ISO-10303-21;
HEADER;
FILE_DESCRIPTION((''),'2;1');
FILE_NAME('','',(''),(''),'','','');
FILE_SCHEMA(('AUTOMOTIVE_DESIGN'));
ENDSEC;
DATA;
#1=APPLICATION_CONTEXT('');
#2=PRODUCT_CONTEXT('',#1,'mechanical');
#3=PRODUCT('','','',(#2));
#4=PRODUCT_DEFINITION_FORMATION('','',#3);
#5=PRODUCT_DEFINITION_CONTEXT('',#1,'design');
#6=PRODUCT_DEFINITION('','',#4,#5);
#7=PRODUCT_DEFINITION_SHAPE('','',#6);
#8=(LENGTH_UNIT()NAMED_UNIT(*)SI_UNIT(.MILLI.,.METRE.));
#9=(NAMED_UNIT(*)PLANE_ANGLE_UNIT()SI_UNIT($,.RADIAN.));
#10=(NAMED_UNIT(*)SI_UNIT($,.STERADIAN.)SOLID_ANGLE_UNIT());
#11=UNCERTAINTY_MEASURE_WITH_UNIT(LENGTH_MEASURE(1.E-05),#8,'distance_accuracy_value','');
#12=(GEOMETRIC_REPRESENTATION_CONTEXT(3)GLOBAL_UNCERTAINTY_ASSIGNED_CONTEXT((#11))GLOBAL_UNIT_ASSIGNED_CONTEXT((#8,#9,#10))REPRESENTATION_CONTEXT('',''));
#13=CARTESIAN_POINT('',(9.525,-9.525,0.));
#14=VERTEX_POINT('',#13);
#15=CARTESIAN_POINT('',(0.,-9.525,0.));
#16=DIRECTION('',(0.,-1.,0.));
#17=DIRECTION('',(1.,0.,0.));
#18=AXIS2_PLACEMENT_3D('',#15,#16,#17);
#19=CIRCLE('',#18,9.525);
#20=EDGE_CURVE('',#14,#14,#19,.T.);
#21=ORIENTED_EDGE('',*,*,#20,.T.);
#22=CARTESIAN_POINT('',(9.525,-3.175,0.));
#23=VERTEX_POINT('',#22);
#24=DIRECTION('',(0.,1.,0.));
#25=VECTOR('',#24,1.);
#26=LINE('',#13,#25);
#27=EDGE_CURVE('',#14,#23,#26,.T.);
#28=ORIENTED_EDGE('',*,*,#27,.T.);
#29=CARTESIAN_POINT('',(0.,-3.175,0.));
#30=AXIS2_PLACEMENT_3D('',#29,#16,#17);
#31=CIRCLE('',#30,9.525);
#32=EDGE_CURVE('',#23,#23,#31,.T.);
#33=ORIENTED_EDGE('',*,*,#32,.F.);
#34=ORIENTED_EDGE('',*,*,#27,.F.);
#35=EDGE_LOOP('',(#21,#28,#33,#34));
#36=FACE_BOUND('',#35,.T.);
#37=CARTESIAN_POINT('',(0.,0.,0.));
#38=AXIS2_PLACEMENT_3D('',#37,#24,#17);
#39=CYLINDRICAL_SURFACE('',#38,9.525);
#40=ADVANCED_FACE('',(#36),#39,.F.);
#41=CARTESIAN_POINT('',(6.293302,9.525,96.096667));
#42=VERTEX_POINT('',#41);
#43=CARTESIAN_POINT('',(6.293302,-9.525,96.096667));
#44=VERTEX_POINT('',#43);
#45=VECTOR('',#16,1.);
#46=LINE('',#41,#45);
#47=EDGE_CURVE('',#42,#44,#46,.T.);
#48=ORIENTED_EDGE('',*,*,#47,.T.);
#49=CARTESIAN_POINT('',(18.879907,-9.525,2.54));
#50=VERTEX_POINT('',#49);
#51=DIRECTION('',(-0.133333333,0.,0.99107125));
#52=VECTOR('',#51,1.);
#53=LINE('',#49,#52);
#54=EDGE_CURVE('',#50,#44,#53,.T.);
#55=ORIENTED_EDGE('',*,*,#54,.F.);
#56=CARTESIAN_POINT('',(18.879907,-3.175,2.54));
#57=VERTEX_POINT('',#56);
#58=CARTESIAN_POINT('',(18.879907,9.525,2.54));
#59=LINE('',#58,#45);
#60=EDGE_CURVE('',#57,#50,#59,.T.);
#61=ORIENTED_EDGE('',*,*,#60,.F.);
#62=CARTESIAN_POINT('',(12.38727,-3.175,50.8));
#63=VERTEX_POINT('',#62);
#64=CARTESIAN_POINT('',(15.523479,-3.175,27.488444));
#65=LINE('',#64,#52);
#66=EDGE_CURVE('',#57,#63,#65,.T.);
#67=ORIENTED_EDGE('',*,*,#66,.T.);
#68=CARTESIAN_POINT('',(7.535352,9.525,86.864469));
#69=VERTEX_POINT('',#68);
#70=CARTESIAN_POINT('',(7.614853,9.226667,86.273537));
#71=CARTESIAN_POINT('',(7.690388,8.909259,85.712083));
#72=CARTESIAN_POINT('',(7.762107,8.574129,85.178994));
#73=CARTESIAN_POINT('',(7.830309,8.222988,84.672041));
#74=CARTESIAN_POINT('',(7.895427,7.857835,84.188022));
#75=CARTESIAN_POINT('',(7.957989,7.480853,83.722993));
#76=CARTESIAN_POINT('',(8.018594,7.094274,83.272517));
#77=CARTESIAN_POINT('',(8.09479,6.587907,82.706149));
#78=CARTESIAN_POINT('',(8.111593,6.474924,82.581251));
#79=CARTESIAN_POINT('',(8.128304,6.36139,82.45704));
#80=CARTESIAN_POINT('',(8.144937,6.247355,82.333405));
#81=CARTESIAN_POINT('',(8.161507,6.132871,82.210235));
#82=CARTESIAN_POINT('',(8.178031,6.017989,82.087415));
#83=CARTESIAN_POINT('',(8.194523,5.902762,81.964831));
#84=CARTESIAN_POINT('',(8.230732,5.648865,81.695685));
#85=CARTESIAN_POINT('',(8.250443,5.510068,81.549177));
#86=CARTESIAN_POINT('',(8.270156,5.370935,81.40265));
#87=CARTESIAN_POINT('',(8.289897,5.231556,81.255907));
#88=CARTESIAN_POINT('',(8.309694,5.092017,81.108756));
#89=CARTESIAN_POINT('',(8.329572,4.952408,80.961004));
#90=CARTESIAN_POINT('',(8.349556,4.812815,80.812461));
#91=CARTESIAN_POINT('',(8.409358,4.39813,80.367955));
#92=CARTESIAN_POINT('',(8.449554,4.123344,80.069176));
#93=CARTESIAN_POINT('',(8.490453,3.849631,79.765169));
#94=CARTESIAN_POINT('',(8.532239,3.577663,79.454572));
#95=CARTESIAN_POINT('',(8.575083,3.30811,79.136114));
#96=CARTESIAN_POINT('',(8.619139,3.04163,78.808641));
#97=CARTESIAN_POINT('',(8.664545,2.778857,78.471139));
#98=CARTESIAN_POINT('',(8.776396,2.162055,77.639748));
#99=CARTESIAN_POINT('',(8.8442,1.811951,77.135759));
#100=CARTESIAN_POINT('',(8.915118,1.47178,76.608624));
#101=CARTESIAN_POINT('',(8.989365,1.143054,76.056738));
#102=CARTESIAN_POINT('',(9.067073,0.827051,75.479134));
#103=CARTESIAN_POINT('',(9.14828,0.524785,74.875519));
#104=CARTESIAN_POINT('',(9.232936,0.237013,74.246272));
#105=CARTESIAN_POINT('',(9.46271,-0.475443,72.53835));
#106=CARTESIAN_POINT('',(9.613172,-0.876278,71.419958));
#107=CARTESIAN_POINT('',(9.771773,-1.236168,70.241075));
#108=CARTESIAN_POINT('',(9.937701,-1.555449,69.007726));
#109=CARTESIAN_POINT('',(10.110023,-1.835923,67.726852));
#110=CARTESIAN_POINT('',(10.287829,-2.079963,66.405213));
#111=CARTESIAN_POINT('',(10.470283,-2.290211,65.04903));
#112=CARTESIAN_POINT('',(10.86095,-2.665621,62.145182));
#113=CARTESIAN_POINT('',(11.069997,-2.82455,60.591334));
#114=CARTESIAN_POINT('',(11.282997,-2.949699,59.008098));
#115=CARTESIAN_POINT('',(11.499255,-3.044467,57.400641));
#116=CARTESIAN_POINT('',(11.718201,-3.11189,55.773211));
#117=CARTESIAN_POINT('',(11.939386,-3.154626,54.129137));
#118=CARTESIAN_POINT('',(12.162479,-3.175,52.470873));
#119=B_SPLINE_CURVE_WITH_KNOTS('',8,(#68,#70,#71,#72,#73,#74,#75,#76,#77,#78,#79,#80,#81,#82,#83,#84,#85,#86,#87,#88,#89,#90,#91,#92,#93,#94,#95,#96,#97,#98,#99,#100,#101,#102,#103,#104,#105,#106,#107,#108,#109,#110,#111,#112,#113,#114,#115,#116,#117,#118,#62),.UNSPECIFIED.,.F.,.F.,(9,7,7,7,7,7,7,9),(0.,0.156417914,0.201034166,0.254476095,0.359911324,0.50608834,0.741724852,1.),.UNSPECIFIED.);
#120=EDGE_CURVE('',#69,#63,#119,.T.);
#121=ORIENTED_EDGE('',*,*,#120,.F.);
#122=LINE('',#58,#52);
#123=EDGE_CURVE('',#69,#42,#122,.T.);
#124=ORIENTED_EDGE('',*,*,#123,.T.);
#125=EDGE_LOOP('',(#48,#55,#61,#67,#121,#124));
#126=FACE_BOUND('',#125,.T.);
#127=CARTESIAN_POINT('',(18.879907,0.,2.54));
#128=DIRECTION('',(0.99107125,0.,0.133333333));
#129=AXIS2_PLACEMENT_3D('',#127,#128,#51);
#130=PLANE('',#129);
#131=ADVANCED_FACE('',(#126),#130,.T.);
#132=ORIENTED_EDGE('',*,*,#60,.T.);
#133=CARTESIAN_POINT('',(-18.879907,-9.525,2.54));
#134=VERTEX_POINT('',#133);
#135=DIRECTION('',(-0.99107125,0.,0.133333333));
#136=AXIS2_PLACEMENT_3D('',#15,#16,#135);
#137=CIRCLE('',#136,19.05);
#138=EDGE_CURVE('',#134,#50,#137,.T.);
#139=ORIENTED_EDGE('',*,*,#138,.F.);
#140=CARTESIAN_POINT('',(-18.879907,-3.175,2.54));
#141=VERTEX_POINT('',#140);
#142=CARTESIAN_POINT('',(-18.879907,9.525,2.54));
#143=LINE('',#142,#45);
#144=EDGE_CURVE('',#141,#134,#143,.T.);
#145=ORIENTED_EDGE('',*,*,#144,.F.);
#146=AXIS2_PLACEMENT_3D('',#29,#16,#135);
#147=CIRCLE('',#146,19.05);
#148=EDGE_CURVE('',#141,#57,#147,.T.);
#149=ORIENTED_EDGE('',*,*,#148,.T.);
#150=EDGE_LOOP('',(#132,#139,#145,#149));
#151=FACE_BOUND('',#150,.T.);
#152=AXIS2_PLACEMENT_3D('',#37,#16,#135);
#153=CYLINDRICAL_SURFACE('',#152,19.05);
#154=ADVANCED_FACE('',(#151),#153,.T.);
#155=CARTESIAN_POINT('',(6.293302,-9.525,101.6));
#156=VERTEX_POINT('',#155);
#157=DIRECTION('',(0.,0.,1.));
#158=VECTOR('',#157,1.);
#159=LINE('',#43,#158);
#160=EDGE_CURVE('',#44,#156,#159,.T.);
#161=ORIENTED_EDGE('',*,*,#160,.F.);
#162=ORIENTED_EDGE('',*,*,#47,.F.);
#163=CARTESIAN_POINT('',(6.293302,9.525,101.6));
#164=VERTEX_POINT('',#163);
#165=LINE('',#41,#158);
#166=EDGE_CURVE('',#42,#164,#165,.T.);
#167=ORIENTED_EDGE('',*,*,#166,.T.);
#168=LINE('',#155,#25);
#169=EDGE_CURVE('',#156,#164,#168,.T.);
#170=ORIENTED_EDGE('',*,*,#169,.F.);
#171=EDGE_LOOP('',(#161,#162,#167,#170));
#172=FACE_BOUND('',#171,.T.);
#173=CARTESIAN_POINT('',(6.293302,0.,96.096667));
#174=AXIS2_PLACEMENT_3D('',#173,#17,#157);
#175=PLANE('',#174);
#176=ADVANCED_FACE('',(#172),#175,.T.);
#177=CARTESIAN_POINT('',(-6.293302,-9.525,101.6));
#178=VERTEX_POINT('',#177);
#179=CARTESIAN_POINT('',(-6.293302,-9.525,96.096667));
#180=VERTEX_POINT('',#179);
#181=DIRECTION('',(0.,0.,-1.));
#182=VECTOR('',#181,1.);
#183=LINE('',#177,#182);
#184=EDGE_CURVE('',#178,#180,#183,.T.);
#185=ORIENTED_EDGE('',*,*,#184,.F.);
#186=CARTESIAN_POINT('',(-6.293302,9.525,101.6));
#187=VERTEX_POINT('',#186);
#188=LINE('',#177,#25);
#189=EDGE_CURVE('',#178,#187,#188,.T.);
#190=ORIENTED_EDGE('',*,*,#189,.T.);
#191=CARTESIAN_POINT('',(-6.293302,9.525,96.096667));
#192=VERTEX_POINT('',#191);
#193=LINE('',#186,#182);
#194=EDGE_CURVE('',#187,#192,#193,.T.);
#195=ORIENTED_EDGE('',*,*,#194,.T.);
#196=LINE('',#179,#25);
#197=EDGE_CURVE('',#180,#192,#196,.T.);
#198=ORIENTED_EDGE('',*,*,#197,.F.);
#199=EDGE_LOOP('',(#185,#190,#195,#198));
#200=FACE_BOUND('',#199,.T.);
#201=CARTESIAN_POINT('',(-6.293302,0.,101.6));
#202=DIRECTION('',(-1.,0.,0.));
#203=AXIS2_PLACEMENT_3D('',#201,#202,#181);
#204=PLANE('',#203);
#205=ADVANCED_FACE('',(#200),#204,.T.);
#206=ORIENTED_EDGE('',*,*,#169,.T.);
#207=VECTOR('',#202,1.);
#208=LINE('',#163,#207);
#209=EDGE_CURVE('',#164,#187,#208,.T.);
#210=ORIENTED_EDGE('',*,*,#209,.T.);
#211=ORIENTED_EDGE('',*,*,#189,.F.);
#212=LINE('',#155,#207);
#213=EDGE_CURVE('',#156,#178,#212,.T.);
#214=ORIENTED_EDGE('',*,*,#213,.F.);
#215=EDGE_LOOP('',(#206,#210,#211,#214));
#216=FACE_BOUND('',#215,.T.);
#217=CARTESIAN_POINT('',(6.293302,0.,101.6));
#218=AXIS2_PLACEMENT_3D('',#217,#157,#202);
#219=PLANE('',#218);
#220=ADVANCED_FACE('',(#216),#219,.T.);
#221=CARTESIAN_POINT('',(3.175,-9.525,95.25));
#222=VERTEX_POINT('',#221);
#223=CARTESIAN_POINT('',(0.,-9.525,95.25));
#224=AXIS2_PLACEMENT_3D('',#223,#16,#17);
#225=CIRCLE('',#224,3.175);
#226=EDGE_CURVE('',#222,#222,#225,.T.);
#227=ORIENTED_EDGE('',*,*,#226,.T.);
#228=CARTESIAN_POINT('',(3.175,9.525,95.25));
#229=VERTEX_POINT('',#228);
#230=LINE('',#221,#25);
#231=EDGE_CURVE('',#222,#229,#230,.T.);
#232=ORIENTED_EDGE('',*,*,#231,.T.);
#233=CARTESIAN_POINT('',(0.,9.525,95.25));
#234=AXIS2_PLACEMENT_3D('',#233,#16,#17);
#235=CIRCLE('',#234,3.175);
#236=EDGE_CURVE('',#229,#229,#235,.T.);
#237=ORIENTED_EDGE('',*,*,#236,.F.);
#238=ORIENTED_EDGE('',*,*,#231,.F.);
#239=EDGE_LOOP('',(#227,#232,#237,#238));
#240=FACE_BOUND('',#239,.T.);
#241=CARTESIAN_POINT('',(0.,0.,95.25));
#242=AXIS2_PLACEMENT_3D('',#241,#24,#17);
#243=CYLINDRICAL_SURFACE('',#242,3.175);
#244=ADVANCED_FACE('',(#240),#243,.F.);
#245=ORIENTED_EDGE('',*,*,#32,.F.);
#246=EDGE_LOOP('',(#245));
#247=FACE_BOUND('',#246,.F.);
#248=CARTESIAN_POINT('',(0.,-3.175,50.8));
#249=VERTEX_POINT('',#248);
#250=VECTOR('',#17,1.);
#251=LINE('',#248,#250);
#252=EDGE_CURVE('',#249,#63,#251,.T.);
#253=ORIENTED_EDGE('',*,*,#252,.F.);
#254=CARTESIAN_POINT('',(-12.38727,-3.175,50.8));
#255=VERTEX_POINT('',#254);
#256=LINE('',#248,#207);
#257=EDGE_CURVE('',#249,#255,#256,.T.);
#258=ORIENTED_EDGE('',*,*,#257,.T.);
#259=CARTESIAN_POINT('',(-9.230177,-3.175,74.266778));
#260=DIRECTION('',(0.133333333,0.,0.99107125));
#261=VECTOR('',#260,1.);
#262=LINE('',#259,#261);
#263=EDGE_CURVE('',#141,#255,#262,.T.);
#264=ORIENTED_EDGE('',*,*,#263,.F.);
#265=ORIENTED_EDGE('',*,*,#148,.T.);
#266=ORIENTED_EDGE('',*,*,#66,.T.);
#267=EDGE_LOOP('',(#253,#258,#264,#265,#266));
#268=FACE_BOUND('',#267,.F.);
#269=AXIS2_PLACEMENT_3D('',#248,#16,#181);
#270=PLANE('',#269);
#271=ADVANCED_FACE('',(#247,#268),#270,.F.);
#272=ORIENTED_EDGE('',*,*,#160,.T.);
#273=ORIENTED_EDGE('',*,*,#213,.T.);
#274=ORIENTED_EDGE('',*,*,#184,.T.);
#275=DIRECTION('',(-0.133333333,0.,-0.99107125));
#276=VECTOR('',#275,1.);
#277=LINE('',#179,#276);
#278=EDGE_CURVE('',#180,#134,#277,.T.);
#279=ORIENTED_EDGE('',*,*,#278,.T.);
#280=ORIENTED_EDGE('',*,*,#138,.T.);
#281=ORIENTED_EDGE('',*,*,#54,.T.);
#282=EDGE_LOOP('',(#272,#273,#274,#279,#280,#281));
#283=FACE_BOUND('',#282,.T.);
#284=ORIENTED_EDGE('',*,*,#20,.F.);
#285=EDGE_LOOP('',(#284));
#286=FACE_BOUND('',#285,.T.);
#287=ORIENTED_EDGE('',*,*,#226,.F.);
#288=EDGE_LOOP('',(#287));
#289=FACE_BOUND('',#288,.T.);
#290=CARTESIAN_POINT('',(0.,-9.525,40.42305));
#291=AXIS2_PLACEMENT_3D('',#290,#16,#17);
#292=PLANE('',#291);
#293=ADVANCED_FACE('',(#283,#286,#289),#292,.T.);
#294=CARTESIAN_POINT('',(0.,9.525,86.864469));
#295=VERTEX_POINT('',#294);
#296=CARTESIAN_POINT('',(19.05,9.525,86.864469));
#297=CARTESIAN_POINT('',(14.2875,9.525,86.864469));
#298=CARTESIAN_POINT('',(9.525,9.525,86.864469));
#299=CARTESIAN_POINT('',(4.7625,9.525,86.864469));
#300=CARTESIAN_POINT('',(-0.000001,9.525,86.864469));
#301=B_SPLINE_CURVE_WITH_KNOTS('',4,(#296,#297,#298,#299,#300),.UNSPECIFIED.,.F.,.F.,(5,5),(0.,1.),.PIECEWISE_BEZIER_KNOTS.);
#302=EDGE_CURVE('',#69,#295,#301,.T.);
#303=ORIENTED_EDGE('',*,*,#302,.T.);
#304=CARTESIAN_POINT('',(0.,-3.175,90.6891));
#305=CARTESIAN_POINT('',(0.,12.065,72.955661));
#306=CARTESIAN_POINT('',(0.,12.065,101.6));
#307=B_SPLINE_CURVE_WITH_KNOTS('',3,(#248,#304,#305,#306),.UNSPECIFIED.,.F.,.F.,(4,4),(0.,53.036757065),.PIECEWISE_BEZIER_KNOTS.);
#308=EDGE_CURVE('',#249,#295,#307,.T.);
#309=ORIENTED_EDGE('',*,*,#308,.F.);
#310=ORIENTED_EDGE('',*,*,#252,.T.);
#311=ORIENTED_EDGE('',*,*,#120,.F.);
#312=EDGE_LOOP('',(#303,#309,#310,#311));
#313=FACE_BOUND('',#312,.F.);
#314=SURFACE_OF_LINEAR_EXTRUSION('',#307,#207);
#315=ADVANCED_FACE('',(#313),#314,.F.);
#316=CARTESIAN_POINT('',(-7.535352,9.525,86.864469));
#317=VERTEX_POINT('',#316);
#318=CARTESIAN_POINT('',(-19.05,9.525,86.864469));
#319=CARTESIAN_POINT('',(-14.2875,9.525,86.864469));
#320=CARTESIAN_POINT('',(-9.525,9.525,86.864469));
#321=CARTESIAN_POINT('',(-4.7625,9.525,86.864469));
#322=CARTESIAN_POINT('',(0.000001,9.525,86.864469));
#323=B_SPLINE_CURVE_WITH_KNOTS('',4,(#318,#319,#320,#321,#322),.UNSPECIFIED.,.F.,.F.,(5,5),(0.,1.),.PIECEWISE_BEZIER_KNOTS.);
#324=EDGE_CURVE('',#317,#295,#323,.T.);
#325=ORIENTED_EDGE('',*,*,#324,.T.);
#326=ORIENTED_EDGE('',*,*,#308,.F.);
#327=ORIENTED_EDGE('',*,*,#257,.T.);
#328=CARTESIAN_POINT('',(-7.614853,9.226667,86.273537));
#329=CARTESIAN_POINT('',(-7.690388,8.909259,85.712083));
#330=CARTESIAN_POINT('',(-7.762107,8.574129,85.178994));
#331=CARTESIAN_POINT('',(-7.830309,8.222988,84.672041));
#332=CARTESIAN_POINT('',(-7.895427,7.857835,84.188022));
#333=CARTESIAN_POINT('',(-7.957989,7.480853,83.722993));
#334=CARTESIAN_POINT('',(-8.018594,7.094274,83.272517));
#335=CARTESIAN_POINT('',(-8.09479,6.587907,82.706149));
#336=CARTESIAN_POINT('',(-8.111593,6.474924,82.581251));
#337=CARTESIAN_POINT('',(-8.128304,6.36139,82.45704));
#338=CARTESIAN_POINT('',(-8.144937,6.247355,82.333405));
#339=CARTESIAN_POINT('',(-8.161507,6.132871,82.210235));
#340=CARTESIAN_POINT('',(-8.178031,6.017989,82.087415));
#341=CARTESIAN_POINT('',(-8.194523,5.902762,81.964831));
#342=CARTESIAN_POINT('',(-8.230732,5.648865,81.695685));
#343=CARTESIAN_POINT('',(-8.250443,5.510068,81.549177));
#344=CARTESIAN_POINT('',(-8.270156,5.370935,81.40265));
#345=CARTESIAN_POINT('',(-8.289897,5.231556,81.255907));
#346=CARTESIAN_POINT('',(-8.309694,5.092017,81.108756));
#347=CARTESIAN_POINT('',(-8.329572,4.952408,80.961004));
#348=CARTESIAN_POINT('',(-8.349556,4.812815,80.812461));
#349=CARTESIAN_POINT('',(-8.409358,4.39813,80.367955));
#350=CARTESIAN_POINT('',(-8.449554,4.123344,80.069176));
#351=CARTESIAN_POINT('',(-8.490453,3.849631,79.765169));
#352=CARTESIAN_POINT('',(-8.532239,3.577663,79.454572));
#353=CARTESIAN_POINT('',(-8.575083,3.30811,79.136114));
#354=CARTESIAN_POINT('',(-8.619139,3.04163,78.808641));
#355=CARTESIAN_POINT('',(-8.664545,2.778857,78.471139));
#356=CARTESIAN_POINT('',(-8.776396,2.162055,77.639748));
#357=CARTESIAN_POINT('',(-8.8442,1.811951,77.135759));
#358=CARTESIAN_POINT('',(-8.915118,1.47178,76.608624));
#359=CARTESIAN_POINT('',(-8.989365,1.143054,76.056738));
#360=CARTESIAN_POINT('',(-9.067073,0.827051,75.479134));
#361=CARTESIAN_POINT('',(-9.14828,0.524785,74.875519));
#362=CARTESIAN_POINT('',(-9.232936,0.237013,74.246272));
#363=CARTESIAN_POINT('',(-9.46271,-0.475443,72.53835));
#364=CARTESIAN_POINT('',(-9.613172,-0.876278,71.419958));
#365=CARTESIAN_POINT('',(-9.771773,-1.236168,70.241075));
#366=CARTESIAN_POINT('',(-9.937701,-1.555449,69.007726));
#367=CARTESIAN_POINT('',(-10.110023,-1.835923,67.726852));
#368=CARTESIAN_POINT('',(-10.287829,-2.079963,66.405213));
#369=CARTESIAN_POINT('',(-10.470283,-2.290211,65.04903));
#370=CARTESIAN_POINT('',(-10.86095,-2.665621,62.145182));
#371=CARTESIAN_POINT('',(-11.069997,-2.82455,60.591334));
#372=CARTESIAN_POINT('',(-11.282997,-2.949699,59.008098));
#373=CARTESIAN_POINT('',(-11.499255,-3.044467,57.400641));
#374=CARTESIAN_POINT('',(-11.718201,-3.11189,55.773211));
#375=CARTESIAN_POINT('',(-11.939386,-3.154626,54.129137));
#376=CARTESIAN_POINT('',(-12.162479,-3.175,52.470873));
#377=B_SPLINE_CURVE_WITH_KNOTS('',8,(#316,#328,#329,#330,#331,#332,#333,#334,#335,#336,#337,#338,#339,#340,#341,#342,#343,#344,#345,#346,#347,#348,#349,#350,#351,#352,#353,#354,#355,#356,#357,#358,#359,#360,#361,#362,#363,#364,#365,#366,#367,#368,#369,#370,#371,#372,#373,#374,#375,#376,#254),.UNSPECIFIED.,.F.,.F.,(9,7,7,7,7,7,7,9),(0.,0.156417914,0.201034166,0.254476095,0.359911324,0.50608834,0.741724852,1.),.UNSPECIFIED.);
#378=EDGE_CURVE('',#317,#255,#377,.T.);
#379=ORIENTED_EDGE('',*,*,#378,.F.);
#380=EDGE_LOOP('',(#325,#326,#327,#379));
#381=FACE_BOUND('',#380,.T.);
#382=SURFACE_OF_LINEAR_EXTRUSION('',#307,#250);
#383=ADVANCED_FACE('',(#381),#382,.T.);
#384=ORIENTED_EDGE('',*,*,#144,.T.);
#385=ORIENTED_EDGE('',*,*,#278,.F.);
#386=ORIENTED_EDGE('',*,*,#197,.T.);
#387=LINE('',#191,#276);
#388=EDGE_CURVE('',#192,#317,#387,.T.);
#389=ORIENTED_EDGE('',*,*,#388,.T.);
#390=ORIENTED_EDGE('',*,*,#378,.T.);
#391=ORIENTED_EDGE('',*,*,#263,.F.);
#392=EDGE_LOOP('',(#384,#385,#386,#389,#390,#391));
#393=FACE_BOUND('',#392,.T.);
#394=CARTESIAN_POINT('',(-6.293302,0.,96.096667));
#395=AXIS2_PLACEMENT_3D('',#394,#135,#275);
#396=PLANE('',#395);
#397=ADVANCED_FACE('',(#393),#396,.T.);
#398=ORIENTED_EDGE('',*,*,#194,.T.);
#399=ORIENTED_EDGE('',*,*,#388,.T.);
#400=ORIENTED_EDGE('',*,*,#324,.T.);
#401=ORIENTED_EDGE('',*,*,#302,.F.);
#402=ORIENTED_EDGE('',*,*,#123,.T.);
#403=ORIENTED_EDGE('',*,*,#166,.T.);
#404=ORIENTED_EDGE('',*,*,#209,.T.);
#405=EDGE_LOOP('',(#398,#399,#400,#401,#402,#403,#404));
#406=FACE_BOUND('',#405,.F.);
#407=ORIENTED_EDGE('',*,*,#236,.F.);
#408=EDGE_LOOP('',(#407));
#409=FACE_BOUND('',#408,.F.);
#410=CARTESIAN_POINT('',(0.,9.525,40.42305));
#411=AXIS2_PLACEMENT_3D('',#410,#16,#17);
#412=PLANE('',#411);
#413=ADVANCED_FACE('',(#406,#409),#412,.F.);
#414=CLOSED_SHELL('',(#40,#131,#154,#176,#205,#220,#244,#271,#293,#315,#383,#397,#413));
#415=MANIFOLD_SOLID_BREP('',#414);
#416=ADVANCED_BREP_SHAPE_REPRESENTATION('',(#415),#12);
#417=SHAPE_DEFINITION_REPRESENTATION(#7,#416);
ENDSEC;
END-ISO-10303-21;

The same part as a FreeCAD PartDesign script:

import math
import FreeCAD as App
import Part
import Sketcher
from FreeCAD import Vector
Q = App.Units.Quantity

doc = App.newDocument("Part")
params = doc.addObject("Spreadsheet::Sheet", "Params")
for row, (alias, value) in enumerate([
    ("sketch1_diameter", "0.75 in"),
    ("sketch1_diameter2", "0.25 in"),
    ("sketch1_radius", "0.75 in"),
    ("pad1_length", "0.75 in"),
], start=1):
    params.set(f"A{row}", alias)
    params.set(f"B{row}", "=" + value)
    params.setAlias(f"B{row}", alias)

body = doc.addObject("PartDesign::Body", "Body")

# Sketch on XZ plane
sketch1 = body.newObject("Sketcher::SketchObject", "Sketch")
sketch1.AttachmentSupport = (doc.getObject("XZ_Plane"), [""])
sketch1.MapMode = "FlatFace"
sketch1.addGeometry([
    Part.LineSegment(Vector(-6.3, 96.1, 0), Vector(-18.9, 2.5, 0)),  # 0
    Part.ArcOfCircle(Part.Circle(Vector(0, 0, 0), Vector(0, 0, 1), 19.1), math.radians(172), math.radians(368)),  # 1
    Part.LineSegment(Vector(18.9, 2.5, 0), Vector(6.3, 96.1, 0)),  # 2
    Part.LineSegment(Vector(6.3, 96.1, 0), Vector(6.3, 101.6, 0)),  # 3
    Part.LineSegment(Vector(6.3, 101.6, 0), Vector(-6.3, 101.6, 0)),  # 4
    Part.LineSegment(Vector(-6.3, 101.6, 0), Vector(-6.3, 96.1, 0)),  # 5
    Part.Circle(Vector(0, 0, 0), Vector(0, 0, 1), 9.5),  # 6
    Part.Circle(Vector(0, 95.2, 0), Vector(0, 0, 1), 3.2),  # 7
], False)
sketch1.addConstraint([
    Sketcher.Constraint("Tangent", 0, 2, 1, 1),
    Sketcher.Constraint("Tangent", 1, 2, 2, 1),
    Sketcher.Constraint("Coincident", 2, 2, 3, 1),
    Sketcher.Constraint("Coincident", 3, 2, 4, 1),
    Sketcher.Constraint("Coincident", 4, 2, 5, 1),
    Sketcher.Constraint("Coincident", 5, 2, 0, 1),
    Sketcher.Constraint("Vertical", 3),
    Sketcher.Constraint("Horizontal", 4),
    Sketcher.Constraint("Vertical", 5),
    Sketcher.Constraint("Coincident", 1, 3, -1, 1),
    Sketcher.Constraint("Coincident", 6, 3, -1, 1),
    Sketcher.Constraint("Symmetric", 2, 2, 5, 2, -2),
    Sketcher.Constraint("PointOnObject", 7, 3, -2),
    Sketcher.Constraint("Diameter", 6, Q("0.75 in")),
    Sketcher.Constraint("Diameter", 7, Q("0.25 in")),
    Sketcher.Constraint("Radius", 1, Q("0.75 in")),
    Sketcher.Constraint("DistanceY", -1, 1, 3, 2, Q("4 in")),
    Sketcher.Constraint("DistanceY", -1, 1, 0, 2, Q("0.1 in")),
    Sketcher.Constraint("DistanceY", -1, 1, 7, 3, Q("3.75 in")),
    Sketcher.Constraint("DistanceX", 4, 2, 4, 1, Q("12.586605 mm")),
])
sketch1.setExpression("Constraints[13]", "Params.sketch1_diameter")
sketch1.setExpression("Constraints[14]", "Params.sketch1_diameter2")
sketch1.setExpression("Constraints[15]", "Params.sketch1_radius")
pad1 = body.newObject("PartDesign::Pad", "Pad")
pad1.Profile = sketch1
pad1.setExpression("Length", "Params.pad1_length")
pad1.Midplane = True

# Sketch on YZ plane
sketch2 = body.newObject("Sketcher::SketchObject", "Sketch001")
sketch2.AttachmentSupport = (doc.getObject("YZ_Plane"), [""])
sketch2.MapMode = "FlatFace"
sketch2.addGeometry([
    Part.BSplineCurve([Vector(-3.175, 50.8, 0), Vector(-3.175, 90.6891, 0), Vector(12.065, 72.955661, 0), Vector(12.065, 101.6, 0)], [4, 4], [0, 53.036757065], False, 3, [1, 1, 1, 1], False),
    Part.LineSegment(Vector(-3.175, 50.8, 0), Vector(-3.175, -21.786114, 0)),
    Part.LineSegment(Vector(-3.175, -21.786114, 0), Vector(12.065, -21.786114, 0)),
    Part.LineSegment(Vector(12.065, -21.786114, 0), Vector(12.065, 101.6, 0)),
], False)
sketch2.addConstraint([
    Sketcher.Constraint("Block", 0),
    Sketcher.Constraint("Coincident", 0, 1, 1, 1),
    Sketcher.Constraint("Coincident", 1, 2, 2, 1),
    Sketcher.Constraint("Coincident", 2, 2, 3, 1),
    Sketcher.Constraint("Coincident", 3, 2, 0, 2),
    Sketcher.Constraint("Vertical", 1),
    Sketcher.Constraint("Horizontal", 2),
    Sketcher.Constraint("Vertical", 3),
    Sketcher.Constraint("DistanceY", 1, 2, 1, 1, Q("72.586114 mm")),
])
pocket1 = body.newObject("PartDesign::Pocket", "Pocket")
pocket1.Profile = sketch2
pocket1.Type = "ThroughAll"
pocket1.Midplane = True

doc.recompute()
